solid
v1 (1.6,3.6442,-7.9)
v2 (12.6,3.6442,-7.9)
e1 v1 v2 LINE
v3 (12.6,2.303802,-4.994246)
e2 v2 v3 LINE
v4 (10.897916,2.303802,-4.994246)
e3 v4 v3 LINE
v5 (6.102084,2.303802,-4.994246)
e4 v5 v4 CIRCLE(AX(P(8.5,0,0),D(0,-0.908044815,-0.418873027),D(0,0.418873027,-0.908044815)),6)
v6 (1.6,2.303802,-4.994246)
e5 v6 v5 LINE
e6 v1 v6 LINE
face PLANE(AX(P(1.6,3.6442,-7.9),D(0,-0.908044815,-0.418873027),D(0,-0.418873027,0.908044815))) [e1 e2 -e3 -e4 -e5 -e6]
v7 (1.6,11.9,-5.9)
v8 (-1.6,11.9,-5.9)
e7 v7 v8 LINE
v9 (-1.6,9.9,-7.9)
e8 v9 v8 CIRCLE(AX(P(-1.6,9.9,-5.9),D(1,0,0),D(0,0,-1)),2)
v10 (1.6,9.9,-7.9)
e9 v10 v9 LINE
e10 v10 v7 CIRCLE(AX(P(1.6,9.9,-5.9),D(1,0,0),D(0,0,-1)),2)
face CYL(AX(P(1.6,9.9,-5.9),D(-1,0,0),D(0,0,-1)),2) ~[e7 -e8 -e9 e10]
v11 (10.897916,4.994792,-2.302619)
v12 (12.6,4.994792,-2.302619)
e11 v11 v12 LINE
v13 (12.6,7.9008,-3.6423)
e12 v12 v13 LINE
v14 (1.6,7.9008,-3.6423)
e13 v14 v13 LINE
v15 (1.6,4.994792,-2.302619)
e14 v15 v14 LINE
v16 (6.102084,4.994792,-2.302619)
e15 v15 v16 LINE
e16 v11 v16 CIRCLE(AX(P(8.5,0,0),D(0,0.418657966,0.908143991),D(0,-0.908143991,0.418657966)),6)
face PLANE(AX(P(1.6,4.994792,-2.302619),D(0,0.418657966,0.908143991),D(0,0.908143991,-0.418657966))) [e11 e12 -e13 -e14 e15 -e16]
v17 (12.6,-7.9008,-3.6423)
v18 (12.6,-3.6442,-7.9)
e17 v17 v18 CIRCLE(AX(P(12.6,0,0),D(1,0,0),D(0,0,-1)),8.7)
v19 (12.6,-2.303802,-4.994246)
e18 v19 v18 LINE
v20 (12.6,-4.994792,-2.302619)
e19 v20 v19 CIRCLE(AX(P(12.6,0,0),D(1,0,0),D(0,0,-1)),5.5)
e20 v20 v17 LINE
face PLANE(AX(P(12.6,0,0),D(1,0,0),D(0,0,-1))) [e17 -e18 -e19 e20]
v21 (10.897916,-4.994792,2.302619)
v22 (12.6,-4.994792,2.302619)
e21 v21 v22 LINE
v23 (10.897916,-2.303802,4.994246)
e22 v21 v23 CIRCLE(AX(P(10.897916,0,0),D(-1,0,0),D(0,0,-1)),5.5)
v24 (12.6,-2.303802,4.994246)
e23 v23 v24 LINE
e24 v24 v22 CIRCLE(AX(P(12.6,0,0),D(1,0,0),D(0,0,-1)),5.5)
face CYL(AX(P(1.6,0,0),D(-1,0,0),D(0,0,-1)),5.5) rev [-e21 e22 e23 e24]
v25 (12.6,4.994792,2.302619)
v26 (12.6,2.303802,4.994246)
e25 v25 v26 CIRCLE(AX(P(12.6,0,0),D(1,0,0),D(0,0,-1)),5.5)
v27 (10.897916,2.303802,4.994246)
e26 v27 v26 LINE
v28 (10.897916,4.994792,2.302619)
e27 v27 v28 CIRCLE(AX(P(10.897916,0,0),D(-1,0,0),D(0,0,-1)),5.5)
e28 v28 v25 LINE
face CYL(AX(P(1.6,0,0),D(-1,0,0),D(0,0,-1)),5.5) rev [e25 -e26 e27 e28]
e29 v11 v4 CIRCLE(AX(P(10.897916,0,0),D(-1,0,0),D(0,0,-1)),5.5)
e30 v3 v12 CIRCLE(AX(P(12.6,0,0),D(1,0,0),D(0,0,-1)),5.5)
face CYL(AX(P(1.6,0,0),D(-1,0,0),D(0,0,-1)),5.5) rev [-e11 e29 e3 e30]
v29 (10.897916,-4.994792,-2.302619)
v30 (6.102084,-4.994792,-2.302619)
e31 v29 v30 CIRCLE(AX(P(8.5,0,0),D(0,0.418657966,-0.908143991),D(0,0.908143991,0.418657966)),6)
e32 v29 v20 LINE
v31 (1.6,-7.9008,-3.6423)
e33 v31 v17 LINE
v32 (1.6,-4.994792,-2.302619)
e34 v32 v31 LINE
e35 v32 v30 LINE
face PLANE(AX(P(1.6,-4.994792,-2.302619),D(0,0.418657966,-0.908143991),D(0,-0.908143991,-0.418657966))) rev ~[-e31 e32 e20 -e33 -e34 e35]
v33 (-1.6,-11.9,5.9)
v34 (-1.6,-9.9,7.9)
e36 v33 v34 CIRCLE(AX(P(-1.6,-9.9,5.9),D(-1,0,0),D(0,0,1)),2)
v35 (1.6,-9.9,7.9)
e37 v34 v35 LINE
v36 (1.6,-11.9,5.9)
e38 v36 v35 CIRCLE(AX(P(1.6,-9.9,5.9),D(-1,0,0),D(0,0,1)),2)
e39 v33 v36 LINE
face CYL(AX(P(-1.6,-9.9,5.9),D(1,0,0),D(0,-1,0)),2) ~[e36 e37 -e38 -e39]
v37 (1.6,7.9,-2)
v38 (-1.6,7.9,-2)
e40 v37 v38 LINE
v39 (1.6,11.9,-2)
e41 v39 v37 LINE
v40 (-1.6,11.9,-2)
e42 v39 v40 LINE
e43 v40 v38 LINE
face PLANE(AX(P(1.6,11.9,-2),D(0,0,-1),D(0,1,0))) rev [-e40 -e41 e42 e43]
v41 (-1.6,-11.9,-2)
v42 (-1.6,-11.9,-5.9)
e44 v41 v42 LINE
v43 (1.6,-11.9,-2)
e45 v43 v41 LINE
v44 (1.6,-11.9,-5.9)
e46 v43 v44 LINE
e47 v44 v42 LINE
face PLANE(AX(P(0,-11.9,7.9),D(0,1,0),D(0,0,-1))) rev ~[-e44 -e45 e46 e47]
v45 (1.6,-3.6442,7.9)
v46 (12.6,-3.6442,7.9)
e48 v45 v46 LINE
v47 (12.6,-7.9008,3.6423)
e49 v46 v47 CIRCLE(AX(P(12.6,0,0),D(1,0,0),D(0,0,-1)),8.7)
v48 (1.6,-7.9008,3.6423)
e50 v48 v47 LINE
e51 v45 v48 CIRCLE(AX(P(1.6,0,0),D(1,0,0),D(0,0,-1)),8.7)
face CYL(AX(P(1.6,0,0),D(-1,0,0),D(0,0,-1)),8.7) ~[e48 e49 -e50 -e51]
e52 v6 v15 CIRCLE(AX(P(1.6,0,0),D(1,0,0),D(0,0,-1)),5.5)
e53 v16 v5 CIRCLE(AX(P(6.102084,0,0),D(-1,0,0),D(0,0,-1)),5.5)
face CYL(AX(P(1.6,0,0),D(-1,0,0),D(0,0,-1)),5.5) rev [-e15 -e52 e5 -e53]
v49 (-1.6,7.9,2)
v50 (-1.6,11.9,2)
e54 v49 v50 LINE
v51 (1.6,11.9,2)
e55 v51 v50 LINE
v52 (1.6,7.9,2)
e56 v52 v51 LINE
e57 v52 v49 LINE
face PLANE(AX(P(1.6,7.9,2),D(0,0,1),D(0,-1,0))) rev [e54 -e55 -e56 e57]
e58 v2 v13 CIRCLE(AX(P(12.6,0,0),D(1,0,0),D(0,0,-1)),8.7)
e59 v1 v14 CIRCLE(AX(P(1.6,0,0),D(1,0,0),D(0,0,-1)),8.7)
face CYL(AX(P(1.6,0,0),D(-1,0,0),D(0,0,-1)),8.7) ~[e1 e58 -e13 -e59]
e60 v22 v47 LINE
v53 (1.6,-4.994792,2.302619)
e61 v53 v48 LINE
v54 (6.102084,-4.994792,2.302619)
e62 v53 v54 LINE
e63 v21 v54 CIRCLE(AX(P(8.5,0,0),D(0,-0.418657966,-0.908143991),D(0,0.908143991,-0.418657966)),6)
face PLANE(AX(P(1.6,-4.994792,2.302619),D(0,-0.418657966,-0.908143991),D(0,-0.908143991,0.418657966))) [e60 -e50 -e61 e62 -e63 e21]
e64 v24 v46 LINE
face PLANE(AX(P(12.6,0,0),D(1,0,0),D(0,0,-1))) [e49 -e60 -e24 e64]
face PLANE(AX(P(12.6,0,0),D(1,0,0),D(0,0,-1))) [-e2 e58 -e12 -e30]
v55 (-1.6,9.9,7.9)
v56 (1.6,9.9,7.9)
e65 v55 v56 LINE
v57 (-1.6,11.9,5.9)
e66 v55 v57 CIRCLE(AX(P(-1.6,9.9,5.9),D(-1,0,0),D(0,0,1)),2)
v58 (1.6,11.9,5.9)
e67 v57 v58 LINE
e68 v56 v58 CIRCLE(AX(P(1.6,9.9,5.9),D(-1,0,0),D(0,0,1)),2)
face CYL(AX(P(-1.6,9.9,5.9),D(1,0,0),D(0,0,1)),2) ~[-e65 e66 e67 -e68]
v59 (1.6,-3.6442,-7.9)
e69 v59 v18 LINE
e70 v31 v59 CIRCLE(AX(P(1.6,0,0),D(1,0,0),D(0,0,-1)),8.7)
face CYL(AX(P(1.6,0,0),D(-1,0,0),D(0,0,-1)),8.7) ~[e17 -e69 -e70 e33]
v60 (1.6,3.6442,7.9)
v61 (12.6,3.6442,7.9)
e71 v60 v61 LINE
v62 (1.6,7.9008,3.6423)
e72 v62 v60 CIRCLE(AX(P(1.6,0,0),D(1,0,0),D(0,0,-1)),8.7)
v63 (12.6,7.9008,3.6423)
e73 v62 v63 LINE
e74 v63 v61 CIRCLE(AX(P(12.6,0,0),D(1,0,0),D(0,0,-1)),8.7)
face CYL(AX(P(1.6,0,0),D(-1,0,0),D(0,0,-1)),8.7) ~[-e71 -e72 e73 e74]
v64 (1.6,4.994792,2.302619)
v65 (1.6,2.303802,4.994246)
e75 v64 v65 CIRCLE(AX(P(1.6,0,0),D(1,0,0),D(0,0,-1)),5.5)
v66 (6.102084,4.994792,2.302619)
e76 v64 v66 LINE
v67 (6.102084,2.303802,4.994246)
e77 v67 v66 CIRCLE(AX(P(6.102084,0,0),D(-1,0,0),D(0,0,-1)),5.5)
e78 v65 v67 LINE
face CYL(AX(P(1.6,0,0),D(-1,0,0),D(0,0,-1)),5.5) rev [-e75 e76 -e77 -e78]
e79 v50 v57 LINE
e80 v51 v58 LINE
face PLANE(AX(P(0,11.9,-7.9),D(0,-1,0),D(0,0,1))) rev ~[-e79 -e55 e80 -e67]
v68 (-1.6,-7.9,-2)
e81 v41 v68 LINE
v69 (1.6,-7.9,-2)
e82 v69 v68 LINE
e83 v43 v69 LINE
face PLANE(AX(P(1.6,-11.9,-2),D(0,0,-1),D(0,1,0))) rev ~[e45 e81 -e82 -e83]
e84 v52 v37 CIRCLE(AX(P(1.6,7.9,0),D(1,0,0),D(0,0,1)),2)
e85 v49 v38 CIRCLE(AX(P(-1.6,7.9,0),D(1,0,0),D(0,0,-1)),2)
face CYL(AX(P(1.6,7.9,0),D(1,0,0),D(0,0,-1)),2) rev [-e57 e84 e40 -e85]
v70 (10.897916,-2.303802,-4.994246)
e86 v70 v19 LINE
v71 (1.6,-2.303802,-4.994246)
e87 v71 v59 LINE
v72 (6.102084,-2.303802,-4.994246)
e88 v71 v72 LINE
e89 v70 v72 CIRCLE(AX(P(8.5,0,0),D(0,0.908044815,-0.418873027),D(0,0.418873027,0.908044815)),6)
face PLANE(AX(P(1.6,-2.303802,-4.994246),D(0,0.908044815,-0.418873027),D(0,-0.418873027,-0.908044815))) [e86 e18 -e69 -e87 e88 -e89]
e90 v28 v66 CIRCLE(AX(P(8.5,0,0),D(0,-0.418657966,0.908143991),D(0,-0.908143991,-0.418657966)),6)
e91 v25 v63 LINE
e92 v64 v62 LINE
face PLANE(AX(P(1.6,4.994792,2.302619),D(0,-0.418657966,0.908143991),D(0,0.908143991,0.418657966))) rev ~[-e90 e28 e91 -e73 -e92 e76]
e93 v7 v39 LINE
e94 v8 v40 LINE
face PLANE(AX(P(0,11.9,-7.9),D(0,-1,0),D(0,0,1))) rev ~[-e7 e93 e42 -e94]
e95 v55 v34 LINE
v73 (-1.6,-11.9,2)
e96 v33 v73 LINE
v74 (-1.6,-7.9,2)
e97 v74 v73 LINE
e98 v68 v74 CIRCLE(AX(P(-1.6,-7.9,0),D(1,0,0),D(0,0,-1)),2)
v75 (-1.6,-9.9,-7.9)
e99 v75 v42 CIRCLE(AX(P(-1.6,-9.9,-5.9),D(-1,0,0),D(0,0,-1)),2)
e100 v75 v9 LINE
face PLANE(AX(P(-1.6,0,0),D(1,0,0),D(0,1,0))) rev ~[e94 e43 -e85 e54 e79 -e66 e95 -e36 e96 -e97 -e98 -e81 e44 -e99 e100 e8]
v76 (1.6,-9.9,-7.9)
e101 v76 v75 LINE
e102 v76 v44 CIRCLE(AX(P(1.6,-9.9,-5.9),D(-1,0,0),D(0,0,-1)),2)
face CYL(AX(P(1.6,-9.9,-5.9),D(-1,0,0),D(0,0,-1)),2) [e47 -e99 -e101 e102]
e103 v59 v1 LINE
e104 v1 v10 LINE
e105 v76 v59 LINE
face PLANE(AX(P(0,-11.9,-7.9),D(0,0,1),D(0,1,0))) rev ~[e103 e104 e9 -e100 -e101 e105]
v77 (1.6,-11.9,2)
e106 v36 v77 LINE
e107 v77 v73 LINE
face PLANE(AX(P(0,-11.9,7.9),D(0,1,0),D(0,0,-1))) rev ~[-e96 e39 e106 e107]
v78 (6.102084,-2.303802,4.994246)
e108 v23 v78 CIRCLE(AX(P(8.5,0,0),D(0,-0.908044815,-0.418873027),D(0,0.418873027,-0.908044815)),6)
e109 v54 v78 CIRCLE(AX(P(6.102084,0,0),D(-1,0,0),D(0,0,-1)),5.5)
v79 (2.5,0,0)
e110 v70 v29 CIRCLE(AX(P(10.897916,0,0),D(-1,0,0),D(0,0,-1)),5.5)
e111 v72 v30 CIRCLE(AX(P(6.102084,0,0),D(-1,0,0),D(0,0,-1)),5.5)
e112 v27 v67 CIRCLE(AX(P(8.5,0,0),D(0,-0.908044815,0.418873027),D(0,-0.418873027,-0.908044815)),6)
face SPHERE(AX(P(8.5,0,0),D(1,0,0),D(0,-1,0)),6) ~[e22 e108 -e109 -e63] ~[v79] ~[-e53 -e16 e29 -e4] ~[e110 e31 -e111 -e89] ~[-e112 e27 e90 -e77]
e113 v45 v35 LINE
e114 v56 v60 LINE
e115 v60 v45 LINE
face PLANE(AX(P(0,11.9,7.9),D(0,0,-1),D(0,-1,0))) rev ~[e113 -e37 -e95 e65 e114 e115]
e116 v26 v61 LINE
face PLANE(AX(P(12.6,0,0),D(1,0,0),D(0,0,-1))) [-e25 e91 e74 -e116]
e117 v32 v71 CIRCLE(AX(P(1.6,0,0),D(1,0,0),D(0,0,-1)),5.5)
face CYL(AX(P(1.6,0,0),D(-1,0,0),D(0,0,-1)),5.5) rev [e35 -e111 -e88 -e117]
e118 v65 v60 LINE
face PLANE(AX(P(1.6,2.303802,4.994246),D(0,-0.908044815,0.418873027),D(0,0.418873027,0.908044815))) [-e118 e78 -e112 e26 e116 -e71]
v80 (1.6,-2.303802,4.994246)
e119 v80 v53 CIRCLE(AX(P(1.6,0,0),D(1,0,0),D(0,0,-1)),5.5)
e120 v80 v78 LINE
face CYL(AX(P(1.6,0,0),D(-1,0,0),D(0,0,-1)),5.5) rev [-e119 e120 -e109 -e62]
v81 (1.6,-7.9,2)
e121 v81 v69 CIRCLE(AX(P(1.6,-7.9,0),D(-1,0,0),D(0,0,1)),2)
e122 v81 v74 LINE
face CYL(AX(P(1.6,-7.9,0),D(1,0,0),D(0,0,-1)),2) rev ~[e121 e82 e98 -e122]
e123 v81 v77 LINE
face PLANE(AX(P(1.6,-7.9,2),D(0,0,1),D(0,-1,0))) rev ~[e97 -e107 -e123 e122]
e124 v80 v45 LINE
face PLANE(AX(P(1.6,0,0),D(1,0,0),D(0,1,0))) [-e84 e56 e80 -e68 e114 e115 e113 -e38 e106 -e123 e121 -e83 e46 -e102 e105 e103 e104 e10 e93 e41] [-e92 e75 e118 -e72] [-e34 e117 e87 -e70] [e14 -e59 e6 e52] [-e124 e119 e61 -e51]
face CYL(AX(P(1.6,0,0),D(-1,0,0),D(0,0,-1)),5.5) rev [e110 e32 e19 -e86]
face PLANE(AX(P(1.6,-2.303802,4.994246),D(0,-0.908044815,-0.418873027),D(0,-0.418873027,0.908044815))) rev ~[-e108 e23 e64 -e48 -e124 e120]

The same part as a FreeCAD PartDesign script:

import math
import FreeCAD as App
import Part
import Sketcher

V = App.Vector
Q = App.Units.Quantity


def edges_at(feature, points):
    """Names of the edges that pass closest to the given points."""
    edges = feature.Shape.Edges
    near = lambda p: min(range(len(edges)), key=lambda i: edges[i].distToShape(Part.Vertex(*p))[0])
    return sorted({f"Edge{near(p) + 1}" for p in points})


def add_polygon(sketch, points):
    """Adds a closed chain of lines whose ends are joined by coincident constraints."""
    first, n = sketch.GeometryCount, len(points)
    for a, b in zip(points, points[1:] + points[:1]):
        sketch.addGeometry(Part.LineSegment(App.Vector(*a, 0), App.Vector(*b, 0)), False)
    for i in range(n):
        sketch.addConstraint(Sketcher.Constraint("Coincident", first + i, 2, first + (i + 1) % n, 1))

doc = App.newDocument("Part")
body = doc.addObject("PartDesign::Body", "Body")

# Sketch on YZ plane
sketch1 = body.newObject("Sketcher::SketchObject", "Sketch")
sketch1.AttachmentSupport = (doc.getObject("YZ_Plane"), [""])
sketch1.MapMode = "FlatFace"
add_polygon(sketch1, [(12, -8), (12, 8), (-12, 8), (-12, -8)])  # lines 0-3
sketch1.addConstraint([
    Sketcher.Constraint("Vertical", 0),
    Sketcher.Constraint("Horizontal", 1),
    Sketcher.Constraint("Vertical", 2),
    Sketcher.Constraint("Horizontal", 3),
    Sketcher.Constraint("Symmetric", 0, 2, 2, 2, -1, 1),
    Sketcher.Constraint("DistanceX", 1, 2, 1, 1, 23.8),
    Sketcher.Constraint("DistanceY", 0, 1, 0, 2, 15.8),
])
pad1 = body.newObject("PartDesign::Pad", "Pad")
pad1.Profile = sketch1
pad1.Length = 3.2
pad1.Midplane = True

# Sketch on YZ plane
sketch2 = body.newObject("Sketcher::SketchObject", "Sketch001")
sketch2.AttachmentSupport = (doc.getObject("YZ_Plane"), [""])
sketch2.MapMode = "FlatFace"
sketch2.AttachmentOffset = App.Placement(V(0, 0, 1.6), App.Rotation())
sketch2.addGeometry([
    Part.LineSegment(V(2.3, -5, 0), V(3.6, -7.9, 0)),  # 0
    Part.ArcOfCircle(Part.Circle(V(0, 0, 0), V(0, 0, 1), 8.7), math.radians(-65), math.radians(-25)),  # 1
    Part.LineSegment(V(7.9, -3.6, 0), V(5, -2.3, 0)),  # 2
    Part.ArcOfCircle(Part.Circle(V(0, 0, 0), V(0, 0, 1), 5.5), math.radians(-65), math.radians(-25)),  # 3
    Part.ArcOfCircle(Part.Circle(V(0, 0, 0), V(0, 0, 1), 8.7), math.radians(-155), math.radians(-115)),  # 4
    Part.LineSegment(V(-3.6, -7.9, 0), V(-2.3, -5, 0)),  # 5
    Part.ArcOfCircle(Part.Circle(V(0, 0, 0), V(0, 0, 1), 5.5), math.radians(-155), math.radians(-115)),  # 6
    Part.LineSegment(V(-5, -2.3, 0), V(-7.9, -3.6, 0)),  # 7
    Part.LineSegment(V(5, 2.3, 0), V(7.9, 3.6, 0)),  # 8
    Part.ArcOfCircle(Part.Circle(V(0, 0, 0), V(0, 0, 1), 8.7), math.radians(25), math.radians(65)),  # 9
    Part.LineSegment(V(3.6, 7.9, 0), V(2.3, 5, 0)),  # 10
    Part.ArcOfCircle(Part.Circle(V(0, 0, 0), V(0, 0, 1), 5.5), math.radians(25), math.radians(65)),  # 11
    Part.ArcOfCircle(Part.Circle(V(0, 0, 0), V(0, 0, 1), 8.7), math.radians(115), math.radians(155)),  # 12
    Part.LineSegment(V(-7.9, 3.6, 0), V(-5, 2.3, 0)),  # 13
    Part.ArcOfCircle(Part.Circle(V(0, 0, 0), V(0, 0, 1), 5.5), math.radians(115), math.radians(155)),  # 14
    Part.LineSegment(V(-2.3, 5, 0), V(-3.6, 7.9, 0)),  # 15
], False)
sketch2.addConstraint([
    Sketcher.Constraint("Coincident", 0, 2, 1, 1),
    Sketcher.Constraint("Coincident", 1, 2, 2, 1),
    Sketcher.Constraint("Coincident", 2, 2, 3, 2),
    Sketcher.Constraint("Coincident", 3, 1, 0, 1),
    Sketcher.Constraint("Coincident", 4, 2, 5, 1),
    Sketcher.Constraint("Coincident", 5, 2, 6, 2),
    Sketcher.Constraint("Coincident", 6, 1, 7, 1),
    Sketcher.Constraint("Coincident", 7, 2, 4, 1),
    Sketcher.Constraint("Coincident", 8, 2, 9, 1),
    Sketcher.Constraint("Coincident", 9, 2, 10, 1),
    Sketcher.Constraint("Coincident", 10, 2, 11, 2),
    Sketcher.Constraint("Coincident", 11, 1, 8, 1),
    Sketcher.Constraint("Coincident", 12, 2, 13, 1),
    Sketcher.Constraint("Coincident", 13, 2, 14, 2),
    Sketcher.Constraint("Coincident", 14, 1, 15, 1),
    Sketcher.Constraint("Coincident", 15, 2, 12, 1),
    Sketcher.Constraint("Coincident", 1, 3, -1, 1),
    Sketcher.Constraint("Coincident", 3, 3, -1, 1),
    Sketcher.Constraint("Coincident", 4, 3, -1, 1),
    Sketcher.Constraint("Coincident", 6, 3, -1, 1),
    Sketcher.Constraint("Coincident", 9, 3, -1, 1),
    Sketcher.Constraint("Coincident", 11, 3, -1, 1),
    Sketcher.Constraint("Coincident", 12, 3, -1, 1),
    Sketcher.Constraint("Coincident", 14, 3, -1, 1),
    Sketcher.Constraint("Equal", 1, 4),
    Sketcher.Constraint("Equal", 3, 6),
    Sketcher.Constraint("Equal", 4, 9),
    Sketcher.Constraint("Equal", 6, 11),
    Sketcher.Constraint("Equal", 9, 12),
    Sketcher.Constraint("Equal", 11, 14),
    Sketcher.Constraint("Perpendicular", 2, 5),
    Sketcher.Constraint("Perpendicular", 0, 7),
    Sketcher.Constraint("Parallel", 7, 8),
    Sketcher.Constraint("Parallel", 5, 10),
    Sketcher.Constraint("Perpendicular", 10, 13),
    Sketcher.Constraint("Perpendicular", 8, 15),
    Sketcher.Constraint("Horizontal", 0, 2, 4, 2),
    Sketcher.Constraint("Horizontal", 3, 1, 5, 2),
    Sketcher.Constraint("Horizontal", 2, 2, 6, 1),
    Sketcher.Constraint("Horizontal", 8, 2, 12, 2),
    Sketcher.Constraint("Horizontal", 10, 2, 14, 1),
    Sketcher.Constraint("Vertical", 1, 2, 8, 2),
    Sketcher.Constraint("Vertical", 0, 2, 9, 2),
    Sketcher.Constraint("Radius", 1, 8.7),
    Sketcher.Constraint("Radius", 3, 5.5),
    Sketcher.Constraint("DistanceY", 0, 2, -1, 1, 7.9),
    Sketcher.Constraint("Angle", 2, Q("155.25 deg")),
    Sketcher.Constraint("DistanceX", 3, 1, 2, 2, 2.691),
])
pad2 = body.newObject("PartDesign::Pad", "Pad001")
pad2.Profile = sketch2
pad2.Length = 11

# Sketch on YZ plane
sketch3 = body.newObject("Sketcher::SketchObject", "Sketch002")
sketch3.AttachmentSupport = (doc.getObject("YZ_Plane"), [""])
sketch3.MapMode = "FlatFace"
sketch3.AttachmentOffset = App.Placement(V(0, 0, 1.6), App.Rotation())
sketch3.addGeometry([
    Part.LineSegment(V(-7.9, 2, 0), V(-11.9, 2, 0)),
    Part.LineSegment(V(-11.9, 2, 0), V(-11.9, -2, 0)),
    Part.LineSegment(V(-11.9, -2, 0), V(-7.9, -2, 0)),
    Part.ArcOfCircle(Part.Circle(V(-7.9, 0, 0), V(0, 0, 1), 2), math.radians(-90), math.radians(90)),
], False)
sketch3.addConstraint([
    Sketcher.Constraint("Coincident", 0, 2, 1, 1),
    Sketcher.Constraint("Coincident", 1, 2, 2, 1),
    Sketcher.Constraint("Tangent", 2, 2, 3, 1),
    Sketcher.Constraint("Tangent", 3, 2, 0, 1),
    Sketcher.Constraint("Horizontal", 0),
    Sketcher.Constraint("Vertical", 1),
    Sketcher.Constraint("Horizontal", 2),
    Sketcher.Constraint("PointOnObject", 3, 3, -1),
    Sketcher.Constraint("Equal", 2, 1),
    Sketcher.Constraint("Radius", 3, 2.0),
    Sketcher.Constraint("DistanceX", 3, 3, -1, 1, 7.9),
])
pocket1 = body.newObject("PartDesign::Pocket", "Pocket")
pocket1.Profile = sketch3
pocket1.Length = 11
doc.recompute()

mirrored = body.newObject("PartDesign::Mirrored", "Mirrored")
mirrored.Originals = [pocket1]
mirrored.MirrorPlane = (doc.getObject("XZ_Plane"), [""])
body.Tip = mirrored

# Sketch on XY plane
sketch4 = body.newObject("Sketcher::SketchObject", "Sketch003")
sketch4.AttachmentSupport = (doc.getObject("XY_Plane"), [""])
sketch4.MapMode = "FlatFace"
sketch4.addGeometry([
    Part.ArcOfCircle(Part.Circle(V(8, 0, 0), V(0, 0, 1), 6), math.radians(180), math.radians(360)),
    Part.LineSegment(V(14, 0, 0), V(2, 0, 0)),
], False)
sketch4.addConstraint([
    Sketcher.Constraint("Coincident", 0, 1, 1, 2),
    Sketcher.Constraint("Coincident", 1, 1, 0, 2),
    Sketcher.Constraint("Horizontal", 1),
    Sketcher.Constraint("PointOnObject", 0, 3, -1),
    Sketcher.Constraint("PointOnObject", 0, 1, -1),
    Sketcher.Constraint("Radius", 0, 6.0),
    Sketcher.Constraint("DistanceX", -1, 1, 0, 3, 8.5),
])
revolution = body.newObject("PartDesign::Revolution", "Revolution")
revolution.Profile = sketch4
revolution.ReferenceAxis = (sketch4, ["H_Axis"])
revolution.Angle = 360
doc.recompute()

fillet = body.newObject("PartDesign::Fillet", "Fillet")
fillet.Base = (revolution, edges_at(revolution, [
    (0, 11.9, 7.9),
    (0, 11.9, -7.9),
    (0, -11.9, -7.9),
    (0, -11.9, 7.9),
]))
fillet.Radius = 2

doc.recompute()
